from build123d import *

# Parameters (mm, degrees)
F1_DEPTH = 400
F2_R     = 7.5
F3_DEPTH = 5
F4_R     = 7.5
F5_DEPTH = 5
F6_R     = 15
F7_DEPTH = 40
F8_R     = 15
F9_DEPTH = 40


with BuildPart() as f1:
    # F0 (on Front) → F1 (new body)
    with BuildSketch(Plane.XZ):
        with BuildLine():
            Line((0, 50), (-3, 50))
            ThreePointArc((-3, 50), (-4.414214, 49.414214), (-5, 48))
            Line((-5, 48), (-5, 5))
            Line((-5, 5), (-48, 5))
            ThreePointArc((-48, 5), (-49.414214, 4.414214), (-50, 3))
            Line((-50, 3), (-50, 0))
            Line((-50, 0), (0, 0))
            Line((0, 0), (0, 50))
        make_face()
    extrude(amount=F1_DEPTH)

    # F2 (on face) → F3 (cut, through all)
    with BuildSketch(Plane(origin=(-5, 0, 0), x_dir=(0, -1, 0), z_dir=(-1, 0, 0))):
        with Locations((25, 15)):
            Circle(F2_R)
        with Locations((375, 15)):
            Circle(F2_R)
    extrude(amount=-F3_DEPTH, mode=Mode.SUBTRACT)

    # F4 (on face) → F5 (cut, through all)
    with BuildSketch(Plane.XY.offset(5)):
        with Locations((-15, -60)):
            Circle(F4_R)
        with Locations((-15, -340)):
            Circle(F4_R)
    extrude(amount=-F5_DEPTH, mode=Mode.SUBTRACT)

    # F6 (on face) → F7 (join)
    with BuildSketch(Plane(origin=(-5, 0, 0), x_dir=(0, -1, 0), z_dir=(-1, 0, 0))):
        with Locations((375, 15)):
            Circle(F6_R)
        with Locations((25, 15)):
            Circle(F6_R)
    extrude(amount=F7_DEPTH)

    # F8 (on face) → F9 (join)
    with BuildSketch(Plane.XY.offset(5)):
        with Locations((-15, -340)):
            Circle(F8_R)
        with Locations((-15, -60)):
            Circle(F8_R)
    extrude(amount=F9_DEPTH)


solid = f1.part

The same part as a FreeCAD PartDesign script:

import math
import FreeCAD as App
import Part
import Sketcher
from FreeCAD import Vector
Q = App.Units.Quantity

doc = App.newDocument("Part")
body = doc.addObject("PartDesign::Body", "Body")

sketch1 = body.newObject("Sketcher::SketchObject", "Sketch")
sketch1.AttachmentSupport = (doc.getObject("XZ_Plane"), [""])
sketch1.MapMode = "FlatFace"
sketch1.addGeometry([
    Part.LineSegment(Vector(0, 50, 0), Vector(-3, 50, 0)),
    Part.ArcOfCircle(Part.Circle(Vector(-3, 48, 0), Vector(0, 0, 1), 2), math.radians(90), math.radians(180)),
    Part.LineSegment(Vector(-5, 48, 0), Vector(-5, 5, 0)),
    Part.LineSegment(Vector(-5, 5, 0), Vector(-48, 5, 0)),
    Part.ArcOfCircle(Part.Circle(Vector(-48, 3, 0), Vector(0, 0, 1), 2), math.radians(90), math.radians(180)),
    Part.LineSegment(Vector(-50, 3, 0), Vector(-50, 0, 0)),
    Part.LineSegment(Vector(-50, 0, 0), Vector(0, 0, 0)),
    Part.LineSegment(Vector(0, 0, 0), Vector(0, 50, 0)),
], False)
sketch1.addConstraint([
    Sketcher.Constraint("Tangent", 0, 2, 1, 1),
    Sketcher.Constraint("Tangent", 1, 2, 2, 1),
    Sketcher.Constraint("Coincident", 2, 2, 3, 1),
    Sketcher.Constraint("Tangent", 3, 2, 4, 1),
    Sketcher.Constraint("Tangent", 4, 2, 5, 1),
    Sketcher.Constraint("Coincident", 5, 2, 6, 1),
    Sketcher.Constraint("Coincident", 6, 2, 7, 1),
    Sketcher.Constraint("Coincident", 7, 2, 0, 1),
    Sketcher.Constraint("Horizontal", 0),
    Sketcher.Constraint("Vertical", 2),
    Sketcher.Constraint("Horizontal", 3),
    Sketcher.Constraint("Vertical", 5),
    Sketcher.Constraint("Horizontal", 6),
    Sketcher.Constraint("Vertical", 7),
    Sketcher.Constraint("Coincident", 6, 2, -1, 1),
    Sketcher.Constraint("Equal", 1, 4),
    Sketcher.Constraint("Equal", 3, 2),
    Sketcher.Constraint("Equal", 0, 5),
    Sketcher.Constraint("Radius", 1, Q("1.999999 mm")),
    Sketcher.Constraint("DistanceX", 0, 2, 0, 1, Q("3 mm")),
    Sketcher.Constraint("DistanceX", 3, 2, 3, 1, Q("43 mm")),
])
pad1 = body.newObject("PartDesign::Pad", "Pad")
pad1.Profile = sketch1
pad1.Length = 400

sketch2 = body.newObject("Sketcher::SketchObject", "Sketch001")
sketch2.AttachmentSupport = (doc.getObject("YZ_Plane"), [""])
sketch2.MapMode = "FlatFace"
sketch2.AttachmentOffset = App.Placement(Vector(0, 0, -5), App.Rotation())
sketch2.addGeometry([
    Part.Circle(Vector(-25, 15, 0), Vector(0, 0, 1), 8),
    Part.Circle(Vector(-375, 15, 0), Vector(0, 0, 1), 8),
], False)
sketch2.addConstraint([
    Sketcher.Constraint("Equal", 0, 1),
    Sketcher.Constraint("Horizontal", 0, 3, 1, 3),
    Sketcher.Constraint("Diameter", 0, Q("15 mm")),
    Sketcher.Constraint("DistanceX", 0, 3, -1, 1, Q("25 mm")),
    Sketcher.Constraint("DistanceY", -1, 1, 0, 3, Q("15 mm")),
    Sketcher.Constraint("DistanceX", 1, 3, -1, 1, Q("375 mm")),
])
pocket1 = body.newObject("PartDesign::Pocket", "Pocket")
pocket1.Profile = sketch2
pocket1.Type = "ThroughAll"
pocket1.Reversed = True

sketch3 = body.newObject("Sketcher::SketchObject", "Sketch002")
sketch3.AttachmentSupport = (doc.getObject("XY_Plane"), [""])
sketch3.MapMode = "FlatFace"
sketch3.AttachmentOffset = App.Placement(Vector(0, 0, 5), App.Rotation())
sketch3.addGeometry([
    Part.Circle(Vector(-15, -60, 0), Vector(0, 0, 1), 8),
    Part.Circle(Vector(-15, -340, 0), Vector(0, 0, 1), 8),
], False)
sketch3.addConstraint([
    Sketcher.Constraint("Equal", 0, 1),
    Sketcher.Constraint("Vertical", 0, 3, 1, 3),
    Sketcher.Constraint("Diameter", 0, Q("15 mm")),
    Sketcher.Constraint("DistanceX", 0, 3, -1, 1, Q("15 mm")),
    Sketcher.Constraint("DistanceY", 0, 3, -1, 1, Q("60 mm")),
    Sketcher.Constraint("DistanceY", 1, 3, -1, 1, Q("340 mm")),
])
pocket2 = body.newObject("PartDesign::Pocket", "Pocket001")
pocket2.Profile = sketch3
pocket2.Type = "ThroughAll"

sketch4 = body.newObject("Sketcher::SketchObject", "Sketch003")
sketch4.AttachmentSupport = (doc.getObject("YZ_Plane"), [""])
sketch4.MapMode = "FlatFace"
sketch4.AttachmentOffset = App.Placement(Vector(0, 0, -5), App.Rotation())
sketch4.addGeometry([
    Part.Circle(Vector(-375, 15, 0), Vector(0, 0, 1), 15),
    Part.Circle(Vector(-25, 15, 0), Vector(0, 0, 1), 15),
], False)
sketch4.addConstraint([
    Sketcher.Constraint("Equal", 0, 1),
    Sketcher.Constraint("Horizontal", 0, 3, 1, 3),
    Sketcher.Constraint("Diameter", 0, Q("30 mm")),
    Sketcher.Constraint("DistanceX", 0, 3, -1, 1, Q("375 mm")),
    Sketcher.Constraint("DistanceY", -1, 1, 0, 3, Q("15 mm")),
    Sketcher.Constraint("DistanceX", 1, 3, -1, 1, Q("25 mm")),
])
pad2 = body.newObject("PartDesign::Pad", "Pad001")
pad2.Profile = sketch4
pad2.Length = 40
pad2.Reversed = True

sketch5 = body.newObject("Sketcher::SketchObject", "Sketch004")
sketch5.AttachmentSupport = (doc.getObject("XY_Plane"), [""])
sketch5.MapMode = "FlatFace"
sketch5.AttachmentOffset = App.Placement(Vector(0, 0, 5), App.Rotation())
sketch5.addGeometry([
    Part.Circle(Vector(-15, -340, 0), Vector(0, 0, 1), 15),
    Part.Circle(Vector(-15, -60, 0), Vector(0, 0, 1), 15),
], False)
sketch5.addConstraint([
    Sketcher.Constraint("Equal", 0, 1),
    Sketcher.Constraint("Vertical", 0, 3, 1, 3),
    Sketcher.Constraint("Diameter", 0, Q("30 mm")),
    Sketcher.Constraint("DistanceX", 0, 3, -1, 1, Q("15 mm")),
    Sketcher.Constraint("DistanceY", 0, 3, -1, 1, Q("340 mm")),
    Sketcher.Constraint("DistanceY", 1, 3, -1, 1, Q("60 mm")),
])
pad3 = body.newObject("PartDesign::Pad", "Pad002")
pad3.Profile = sketch5
pad3.Length = 40

doc.recompute()
